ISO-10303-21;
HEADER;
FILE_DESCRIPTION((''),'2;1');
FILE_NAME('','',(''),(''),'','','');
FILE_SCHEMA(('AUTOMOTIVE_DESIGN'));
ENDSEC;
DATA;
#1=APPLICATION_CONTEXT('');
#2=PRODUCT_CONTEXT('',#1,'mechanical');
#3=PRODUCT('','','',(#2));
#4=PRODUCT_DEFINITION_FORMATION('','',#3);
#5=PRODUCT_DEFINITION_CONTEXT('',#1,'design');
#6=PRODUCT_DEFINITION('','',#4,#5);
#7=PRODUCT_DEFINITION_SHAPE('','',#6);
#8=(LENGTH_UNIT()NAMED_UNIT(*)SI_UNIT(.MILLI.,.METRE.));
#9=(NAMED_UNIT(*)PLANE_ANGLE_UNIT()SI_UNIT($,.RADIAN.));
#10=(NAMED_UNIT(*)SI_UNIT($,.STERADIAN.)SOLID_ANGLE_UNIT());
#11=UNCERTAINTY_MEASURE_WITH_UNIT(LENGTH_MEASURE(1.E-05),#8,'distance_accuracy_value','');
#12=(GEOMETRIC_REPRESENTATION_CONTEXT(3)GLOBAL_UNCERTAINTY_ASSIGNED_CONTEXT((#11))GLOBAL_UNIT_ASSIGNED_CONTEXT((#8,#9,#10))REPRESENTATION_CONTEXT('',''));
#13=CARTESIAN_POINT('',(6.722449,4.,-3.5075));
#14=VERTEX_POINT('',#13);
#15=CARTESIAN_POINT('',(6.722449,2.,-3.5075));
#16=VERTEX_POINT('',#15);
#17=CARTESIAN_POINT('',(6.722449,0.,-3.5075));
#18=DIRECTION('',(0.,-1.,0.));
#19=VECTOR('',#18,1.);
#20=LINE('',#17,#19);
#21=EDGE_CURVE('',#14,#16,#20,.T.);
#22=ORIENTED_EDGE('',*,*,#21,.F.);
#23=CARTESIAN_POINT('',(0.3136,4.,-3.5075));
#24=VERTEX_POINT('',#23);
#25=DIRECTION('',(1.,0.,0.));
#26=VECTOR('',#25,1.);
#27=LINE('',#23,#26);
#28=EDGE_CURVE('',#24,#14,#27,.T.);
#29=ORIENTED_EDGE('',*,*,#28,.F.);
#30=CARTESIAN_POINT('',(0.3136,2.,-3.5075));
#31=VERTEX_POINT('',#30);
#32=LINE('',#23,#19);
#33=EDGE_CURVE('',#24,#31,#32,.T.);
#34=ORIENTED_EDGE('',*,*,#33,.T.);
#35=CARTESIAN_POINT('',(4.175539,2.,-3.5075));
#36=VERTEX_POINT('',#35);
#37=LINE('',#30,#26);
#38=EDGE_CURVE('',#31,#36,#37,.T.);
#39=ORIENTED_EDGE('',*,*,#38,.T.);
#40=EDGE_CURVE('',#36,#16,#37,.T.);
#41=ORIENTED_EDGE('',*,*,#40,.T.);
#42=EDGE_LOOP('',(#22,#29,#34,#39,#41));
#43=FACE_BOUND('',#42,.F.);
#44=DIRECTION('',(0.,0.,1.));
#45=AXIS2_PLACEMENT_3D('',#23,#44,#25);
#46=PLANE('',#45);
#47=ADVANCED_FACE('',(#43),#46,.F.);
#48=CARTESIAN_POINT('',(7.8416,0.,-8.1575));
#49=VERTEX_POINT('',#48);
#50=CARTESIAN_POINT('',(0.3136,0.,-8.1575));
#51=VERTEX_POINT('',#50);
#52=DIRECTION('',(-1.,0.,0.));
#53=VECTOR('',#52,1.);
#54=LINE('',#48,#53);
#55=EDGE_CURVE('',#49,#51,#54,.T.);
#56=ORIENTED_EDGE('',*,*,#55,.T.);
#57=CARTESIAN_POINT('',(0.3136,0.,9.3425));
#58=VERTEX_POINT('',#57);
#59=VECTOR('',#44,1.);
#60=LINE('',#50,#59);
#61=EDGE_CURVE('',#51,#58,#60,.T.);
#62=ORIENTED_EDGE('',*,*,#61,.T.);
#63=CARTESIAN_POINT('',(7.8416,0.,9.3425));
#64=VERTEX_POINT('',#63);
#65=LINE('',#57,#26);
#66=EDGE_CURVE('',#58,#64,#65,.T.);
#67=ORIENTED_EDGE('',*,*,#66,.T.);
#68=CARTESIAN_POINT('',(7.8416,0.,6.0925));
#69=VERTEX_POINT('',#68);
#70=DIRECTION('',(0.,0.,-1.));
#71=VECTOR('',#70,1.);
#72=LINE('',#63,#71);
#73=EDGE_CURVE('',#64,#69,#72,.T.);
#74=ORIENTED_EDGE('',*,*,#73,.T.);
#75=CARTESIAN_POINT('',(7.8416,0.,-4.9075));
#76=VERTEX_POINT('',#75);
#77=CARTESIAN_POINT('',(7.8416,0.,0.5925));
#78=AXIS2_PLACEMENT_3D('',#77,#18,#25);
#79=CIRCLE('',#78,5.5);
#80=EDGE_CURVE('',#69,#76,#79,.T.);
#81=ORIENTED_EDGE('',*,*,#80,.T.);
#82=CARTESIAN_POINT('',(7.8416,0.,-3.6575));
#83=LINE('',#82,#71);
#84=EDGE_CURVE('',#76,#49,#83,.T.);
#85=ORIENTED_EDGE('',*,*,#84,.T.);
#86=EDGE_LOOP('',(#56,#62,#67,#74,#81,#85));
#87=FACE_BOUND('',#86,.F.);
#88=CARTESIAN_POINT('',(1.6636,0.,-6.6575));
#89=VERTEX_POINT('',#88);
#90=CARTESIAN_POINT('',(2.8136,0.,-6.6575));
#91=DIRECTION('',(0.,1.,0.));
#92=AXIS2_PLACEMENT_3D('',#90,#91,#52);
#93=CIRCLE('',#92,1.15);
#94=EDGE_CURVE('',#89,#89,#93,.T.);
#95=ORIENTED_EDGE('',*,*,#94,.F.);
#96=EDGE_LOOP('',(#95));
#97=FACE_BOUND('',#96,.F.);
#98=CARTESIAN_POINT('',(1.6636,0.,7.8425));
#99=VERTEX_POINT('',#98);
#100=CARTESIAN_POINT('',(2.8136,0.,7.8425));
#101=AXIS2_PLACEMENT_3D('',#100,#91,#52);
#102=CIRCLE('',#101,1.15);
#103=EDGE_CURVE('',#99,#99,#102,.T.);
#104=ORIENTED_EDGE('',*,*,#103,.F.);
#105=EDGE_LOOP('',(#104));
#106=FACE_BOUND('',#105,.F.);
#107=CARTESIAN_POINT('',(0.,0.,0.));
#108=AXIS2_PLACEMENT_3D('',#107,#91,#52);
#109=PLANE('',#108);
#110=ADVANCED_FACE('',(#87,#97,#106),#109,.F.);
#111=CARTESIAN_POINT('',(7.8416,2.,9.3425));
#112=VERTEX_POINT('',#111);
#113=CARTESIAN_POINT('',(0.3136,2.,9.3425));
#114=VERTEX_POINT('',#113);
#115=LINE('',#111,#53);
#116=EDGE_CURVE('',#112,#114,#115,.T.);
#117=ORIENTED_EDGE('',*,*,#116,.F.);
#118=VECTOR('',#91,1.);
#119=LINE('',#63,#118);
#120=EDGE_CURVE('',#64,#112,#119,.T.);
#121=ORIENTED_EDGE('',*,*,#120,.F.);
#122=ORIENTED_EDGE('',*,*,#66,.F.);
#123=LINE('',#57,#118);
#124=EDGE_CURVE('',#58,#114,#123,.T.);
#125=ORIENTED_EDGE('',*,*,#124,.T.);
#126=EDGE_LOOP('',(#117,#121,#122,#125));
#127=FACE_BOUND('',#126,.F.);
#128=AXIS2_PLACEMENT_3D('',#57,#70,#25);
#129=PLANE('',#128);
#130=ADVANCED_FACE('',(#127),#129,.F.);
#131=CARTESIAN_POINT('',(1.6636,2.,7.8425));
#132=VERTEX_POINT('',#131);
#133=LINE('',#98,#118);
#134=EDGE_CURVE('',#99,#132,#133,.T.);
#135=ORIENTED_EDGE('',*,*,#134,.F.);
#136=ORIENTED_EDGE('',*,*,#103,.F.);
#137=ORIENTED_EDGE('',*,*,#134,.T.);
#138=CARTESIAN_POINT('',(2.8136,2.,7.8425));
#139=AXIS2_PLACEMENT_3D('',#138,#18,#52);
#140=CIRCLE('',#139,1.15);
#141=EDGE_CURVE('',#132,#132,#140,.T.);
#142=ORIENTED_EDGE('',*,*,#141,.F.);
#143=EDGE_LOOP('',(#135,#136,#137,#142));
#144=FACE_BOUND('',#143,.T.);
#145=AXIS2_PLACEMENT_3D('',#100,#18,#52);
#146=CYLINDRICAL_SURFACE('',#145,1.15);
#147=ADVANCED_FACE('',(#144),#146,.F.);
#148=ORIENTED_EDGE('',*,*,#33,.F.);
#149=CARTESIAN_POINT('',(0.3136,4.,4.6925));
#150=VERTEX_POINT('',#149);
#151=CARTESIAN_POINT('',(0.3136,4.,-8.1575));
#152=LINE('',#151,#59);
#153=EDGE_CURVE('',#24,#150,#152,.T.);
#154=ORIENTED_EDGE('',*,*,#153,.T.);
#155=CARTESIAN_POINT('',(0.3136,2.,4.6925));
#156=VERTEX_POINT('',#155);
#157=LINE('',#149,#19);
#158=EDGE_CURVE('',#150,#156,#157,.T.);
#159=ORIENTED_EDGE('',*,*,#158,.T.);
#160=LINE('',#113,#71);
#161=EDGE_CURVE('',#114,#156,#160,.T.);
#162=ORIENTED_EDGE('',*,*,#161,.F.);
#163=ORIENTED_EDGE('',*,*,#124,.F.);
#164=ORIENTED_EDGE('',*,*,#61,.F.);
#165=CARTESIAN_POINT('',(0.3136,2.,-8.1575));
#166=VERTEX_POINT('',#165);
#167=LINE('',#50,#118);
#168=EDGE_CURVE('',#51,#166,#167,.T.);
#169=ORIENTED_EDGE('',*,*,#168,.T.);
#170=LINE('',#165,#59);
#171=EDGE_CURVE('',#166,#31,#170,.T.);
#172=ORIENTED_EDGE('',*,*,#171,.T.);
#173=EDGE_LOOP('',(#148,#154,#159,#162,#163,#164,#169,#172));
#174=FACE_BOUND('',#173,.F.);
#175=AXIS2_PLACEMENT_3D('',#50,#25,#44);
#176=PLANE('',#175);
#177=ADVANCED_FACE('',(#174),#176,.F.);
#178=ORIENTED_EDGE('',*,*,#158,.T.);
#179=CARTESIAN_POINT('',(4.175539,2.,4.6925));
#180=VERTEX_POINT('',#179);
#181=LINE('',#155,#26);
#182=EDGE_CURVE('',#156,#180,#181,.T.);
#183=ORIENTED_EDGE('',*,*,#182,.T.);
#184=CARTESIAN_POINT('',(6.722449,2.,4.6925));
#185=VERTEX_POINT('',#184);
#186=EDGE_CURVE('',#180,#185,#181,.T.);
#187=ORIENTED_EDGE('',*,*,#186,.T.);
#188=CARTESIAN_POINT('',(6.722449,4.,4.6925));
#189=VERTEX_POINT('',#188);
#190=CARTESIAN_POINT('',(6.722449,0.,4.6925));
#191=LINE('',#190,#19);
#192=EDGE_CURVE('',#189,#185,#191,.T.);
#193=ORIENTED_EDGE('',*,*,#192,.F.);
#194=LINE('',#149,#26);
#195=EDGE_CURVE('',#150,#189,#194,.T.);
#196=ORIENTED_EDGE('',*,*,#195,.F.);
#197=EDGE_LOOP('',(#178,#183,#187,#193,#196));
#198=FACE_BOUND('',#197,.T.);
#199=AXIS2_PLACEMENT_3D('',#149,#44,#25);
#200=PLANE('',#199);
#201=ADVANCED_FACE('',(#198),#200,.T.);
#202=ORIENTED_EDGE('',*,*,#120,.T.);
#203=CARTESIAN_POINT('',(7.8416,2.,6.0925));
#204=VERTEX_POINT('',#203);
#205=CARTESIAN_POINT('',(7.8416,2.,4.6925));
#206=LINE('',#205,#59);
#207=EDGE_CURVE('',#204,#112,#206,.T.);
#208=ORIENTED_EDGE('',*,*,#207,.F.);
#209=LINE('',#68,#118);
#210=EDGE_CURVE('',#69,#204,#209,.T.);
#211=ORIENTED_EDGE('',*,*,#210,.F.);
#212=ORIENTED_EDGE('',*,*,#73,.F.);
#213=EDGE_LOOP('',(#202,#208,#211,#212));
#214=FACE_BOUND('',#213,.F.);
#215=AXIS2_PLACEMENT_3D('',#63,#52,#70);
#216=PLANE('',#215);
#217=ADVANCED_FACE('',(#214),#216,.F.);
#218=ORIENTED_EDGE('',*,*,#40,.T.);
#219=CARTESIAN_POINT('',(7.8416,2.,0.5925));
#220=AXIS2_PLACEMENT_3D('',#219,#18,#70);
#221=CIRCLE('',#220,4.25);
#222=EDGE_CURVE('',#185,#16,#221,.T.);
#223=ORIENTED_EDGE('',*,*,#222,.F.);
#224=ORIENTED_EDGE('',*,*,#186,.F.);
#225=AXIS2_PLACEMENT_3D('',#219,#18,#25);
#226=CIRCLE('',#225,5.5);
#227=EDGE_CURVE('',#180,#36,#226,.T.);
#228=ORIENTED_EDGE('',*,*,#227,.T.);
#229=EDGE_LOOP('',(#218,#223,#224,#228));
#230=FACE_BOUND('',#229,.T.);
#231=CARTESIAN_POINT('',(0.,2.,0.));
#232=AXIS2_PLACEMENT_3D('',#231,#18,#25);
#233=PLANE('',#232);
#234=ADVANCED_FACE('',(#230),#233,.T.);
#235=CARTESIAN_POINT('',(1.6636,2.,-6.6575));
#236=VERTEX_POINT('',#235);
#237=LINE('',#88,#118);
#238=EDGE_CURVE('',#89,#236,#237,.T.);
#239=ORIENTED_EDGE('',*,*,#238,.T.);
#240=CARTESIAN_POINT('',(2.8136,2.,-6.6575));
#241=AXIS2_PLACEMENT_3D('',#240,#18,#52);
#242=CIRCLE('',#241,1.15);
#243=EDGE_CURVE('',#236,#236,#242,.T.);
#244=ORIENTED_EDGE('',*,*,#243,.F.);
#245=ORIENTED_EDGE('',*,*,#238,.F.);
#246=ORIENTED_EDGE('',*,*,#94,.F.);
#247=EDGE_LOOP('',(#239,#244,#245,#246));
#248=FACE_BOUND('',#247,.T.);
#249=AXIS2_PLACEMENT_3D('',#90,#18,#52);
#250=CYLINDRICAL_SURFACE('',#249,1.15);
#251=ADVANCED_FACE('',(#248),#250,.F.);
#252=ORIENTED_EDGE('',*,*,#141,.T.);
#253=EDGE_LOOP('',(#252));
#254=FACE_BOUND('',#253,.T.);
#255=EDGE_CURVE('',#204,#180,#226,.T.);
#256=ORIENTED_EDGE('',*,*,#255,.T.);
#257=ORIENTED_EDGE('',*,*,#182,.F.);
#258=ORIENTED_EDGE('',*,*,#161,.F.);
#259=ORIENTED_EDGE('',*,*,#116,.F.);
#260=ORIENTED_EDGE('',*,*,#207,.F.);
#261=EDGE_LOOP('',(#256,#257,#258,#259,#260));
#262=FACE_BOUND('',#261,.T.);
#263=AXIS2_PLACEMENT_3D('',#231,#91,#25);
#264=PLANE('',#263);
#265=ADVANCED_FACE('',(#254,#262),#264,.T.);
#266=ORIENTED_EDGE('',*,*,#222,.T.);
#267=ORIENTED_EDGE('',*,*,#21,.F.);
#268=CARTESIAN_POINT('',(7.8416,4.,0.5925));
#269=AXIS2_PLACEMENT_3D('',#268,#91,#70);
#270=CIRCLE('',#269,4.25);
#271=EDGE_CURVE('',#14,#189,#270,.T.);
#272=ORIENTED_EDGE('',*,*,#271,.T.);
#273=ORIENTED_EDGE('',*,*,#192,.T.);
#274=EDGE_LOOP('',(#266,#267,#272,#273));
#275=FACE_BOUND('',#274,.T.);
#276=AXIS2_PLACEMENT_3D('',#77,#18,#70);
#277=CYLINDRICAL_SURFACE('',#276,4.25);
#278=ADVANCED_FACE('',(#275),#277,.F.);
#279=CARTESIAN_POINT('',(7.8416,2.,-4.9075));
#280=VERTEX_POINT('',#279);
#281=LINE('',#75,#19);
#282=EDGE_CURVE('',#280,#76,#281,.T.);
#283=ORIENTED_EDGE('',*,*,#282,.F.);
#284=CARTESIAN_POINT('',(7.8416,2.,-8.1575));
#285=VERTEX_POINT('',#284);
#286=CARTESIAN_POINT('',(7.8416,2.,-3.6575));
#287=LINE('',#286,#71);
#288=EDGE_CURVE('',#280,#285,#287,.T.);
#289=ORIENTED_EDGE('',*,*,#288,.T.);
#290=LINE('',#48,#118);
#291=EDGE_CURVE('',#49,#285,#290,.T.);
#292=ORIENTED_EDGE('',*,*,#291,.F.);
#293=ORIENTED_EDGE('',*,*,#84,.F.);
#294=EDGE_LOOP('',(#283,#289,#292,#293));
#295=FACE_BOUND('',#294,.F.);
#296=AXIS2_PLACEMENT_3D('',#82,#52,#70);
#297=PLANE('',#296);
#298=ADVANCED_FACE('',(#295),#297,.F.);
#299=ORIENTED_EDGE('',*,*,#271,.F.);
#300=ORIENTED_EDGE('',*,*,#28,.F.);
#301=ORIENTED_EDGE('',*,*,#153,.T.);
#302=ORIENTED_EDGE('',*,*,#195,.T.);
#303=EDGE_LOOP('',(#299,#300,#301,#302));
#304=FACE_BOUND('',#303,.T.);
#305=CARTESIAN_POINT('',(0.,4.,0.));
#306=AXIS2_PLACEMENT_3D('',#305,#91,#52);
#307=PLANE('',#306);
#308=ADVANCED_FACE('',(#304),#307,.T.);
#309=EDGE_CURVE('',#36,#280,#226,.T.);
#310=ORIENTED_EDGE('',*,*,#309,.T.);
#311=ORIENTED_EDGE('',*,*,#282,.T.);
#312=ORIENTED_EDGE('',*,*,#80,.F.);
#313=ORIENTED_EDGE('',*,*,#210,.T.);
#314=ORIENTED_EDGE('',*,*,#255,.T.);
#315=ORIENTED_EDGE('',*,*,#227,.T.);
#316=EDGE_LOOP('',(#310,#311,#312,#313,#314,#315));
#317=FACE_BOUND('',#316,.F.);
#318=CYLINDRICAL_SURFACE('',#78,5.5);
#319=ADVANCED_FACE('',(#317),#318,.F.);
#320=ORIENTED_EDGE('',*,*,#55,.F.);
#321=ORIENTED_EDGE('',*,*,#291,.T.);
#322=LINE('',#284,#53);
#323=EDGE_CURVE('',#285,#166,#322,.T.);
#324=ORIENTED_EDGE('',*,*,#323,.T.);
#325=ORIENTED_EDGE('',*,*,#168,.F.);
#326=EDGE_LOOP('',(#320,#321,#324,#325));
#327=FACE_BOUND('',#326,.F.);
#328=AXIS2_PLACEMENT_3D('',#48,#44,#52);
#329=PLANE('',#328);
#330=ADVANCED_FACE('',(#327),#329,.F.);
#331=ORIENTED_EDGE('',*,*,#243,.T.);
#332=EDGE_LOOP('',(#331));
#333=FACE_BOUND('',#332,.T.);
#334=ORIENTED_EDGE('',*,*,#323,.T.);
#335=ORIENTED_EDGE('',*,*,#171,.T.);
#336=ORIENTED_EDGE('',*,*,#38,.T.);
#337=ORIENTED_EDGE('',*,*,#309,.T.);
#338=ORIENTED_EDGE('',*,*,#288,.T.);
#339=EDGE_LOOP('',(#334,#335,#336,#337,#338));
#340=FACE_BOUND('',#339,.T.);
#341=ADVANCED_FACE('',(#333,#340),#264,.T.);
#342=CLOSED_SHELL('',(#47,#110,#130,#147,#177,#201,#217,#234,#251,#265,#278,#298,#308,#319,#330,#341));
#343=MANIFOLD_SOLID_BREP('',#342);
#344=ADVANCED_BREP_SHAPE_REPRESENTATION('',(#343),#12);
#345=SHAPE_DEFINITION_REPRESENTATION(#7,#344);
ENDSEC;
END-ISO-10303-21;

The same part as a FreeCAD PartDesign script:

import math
import FreeCAD as App
import Part
import Sketcher


def add_polygon(sketch, points):
    """Adds a closed chain of lines whose ends are joined by coincident constraints."""
    first, n = sketch.GeometryCount, len(points)
    for a, b in zip(points, points[1:] + points[:1]):
        sketch.addGeometry(Part.LineSegment(App.Vector(*a, 0), App.Vector(*b, 0)), False)
    for i in range(n):
        sketch.addConstraint(Sketcher.Constraint("Coincident", first + i, 2, first + (i + 1) % n, 1))

doc = App.newDocument("Part")
body = doc.addObject("PartDesign::Body", "Body")

sketch1 = body.newObject("Sketcher::SketchObject", "Sketch")
sketch1.AttachmentSupport = (doc.getObject("XZ_Plane"), [""])
sketch1.MapMode = "FlatFace"
sketch1.addGeometry([
    Part.LineSegment(App.Vector(0.3, -8.2, 0), App.Vector(0.3, 9.3, 0)),
    Part.LineSegment(App.Vector(0.3, 9.3, 0), App.Vector(7.8, 9.3, 0)),
    Part.LineSegment(App.Vector(7.8, 9.3, 0), App.Vector(7.8, 4.8, 0)),
    Part.ArcOfCircle(Part.Circle(App.Vector(7.8, 0.6, 0), App.Vector(0, 0, 1), 4.2), math.radians(90), math.radians(270)),
    Part.LineSegment(App.Vector(7.8, -3.7, 0), App.Vector(7.8, -8.2, 0)),
    Part.LineSegment(App.Vector(7.8, -8.2, 0), App.Vector(0.3, -8.2, 0)),
    Part.Circle(App.Vector(2.8, -6.7, 0), App.Vector(0, 0, 1), 1.1),
    Part.Circle(App.Vector(2.8, 7.8, 0), App.Vector(0, 0, 1), 1.1),
], False)
sketch1.addConstraint([
    Sketcher.Constraint("Coincident", 0, 2, 1, 1),
    Sketcher.Constraint("Coincident", 1, 2, 2, 1),
    Sketcher.Constraint("Coincident", 2, 2, 3, 1),
    Sketcher.Constraint("Coincident", 3, 2, 4, 1),
    Sketcher.Constraint("Coincident", 4, 2, 5, 1),
    Sketcher.Constraint("Coincident", 5, 2, 0, 1),
    Sketcher.Constraint("Vertical", 0),
    Sketcher.Constraint("Horizontal", 1),
    Sketcher.Constraint("Vertical", 2),
    Sketcher.Constraint("Vertical", 4),
    Sketcher.Constraint("Horizontal", 5),
    Sketcher.Constraint("Equal", 6, 7),
    Sketcher.Constraint("Vertical", 6, 3, 7, 3),
    Sketcher.Constraint("Vertical", 3, 3, 1, 2),
    Sketcher.Constraint("Vertical", 2, 2, 3, 2),
    Sketcher.Constraint("Equal", 2, 4),
    Sketcher.Constraint("Diameter", 6, 2.3),
    Sketcher.Constraint("Radius", 3, 4.25),
    Sketcher.Constraint("DistanceY", 0, 1, 0, 2, 17.5),
    Sketcher.Constraint("DistanceX", 0, 2, 7, 3, 2.5),
    Sketcher.Constraint("DistanceY", 7, 3, 0, 2, 1.5),
    Sketcher.Constraint("DistanceY", 4, 2, 6, 3, 1.5),
    Sketcher.Constraint("DistanceX", 1, 1, 1, 2, 7.528),
    Sketcher.Constraint("DistanceX", -1, 1, 3, 3, 7.8416),
    Sketcher.Constraint("DistanceY", -1, 1, 3, 3, 0.5925),
])
pad1 = body.newObject("PartDesign::Pad", "Pad")
pad1.Profile = sketch1
pad1.Length = 4
pad1.Reversed = True

sketch2 = body.newObject("Sketcher::SketchObject", "Sketch001")
sketch2.AttachmentSupport = (doc.getObject("XZ_Plane"), [""])
sketch2.MapMode = "FlatFace"
sketch2.addGeometry(Part.Circle(App.Vector(8, 1, 0), App.Vector(0, 0, 1), 6), False)
sketch2.addConstraint([
    Sketcher.Constraint("Diameter", 0, 11.0),
    Sketcher.Constraint("DistanceX", -1, 1, 0, 3, 7.8416),
    Sketcher.Constraint("DistanceY", -1, 1, 0, 3, 0.5925),
])
pocket1 = body.newObject("PartDesign::Pocket", "Pocket")
pocket1.Profile = sketch2
pocket1.Length = 2

sketch3 = body.newObject("Sketcher::SketchObject", "Sketch002")
sketch3.AttachmentSupport = (doc.getObject("XZ_Plane"), [""])
sketch3.MapMode = "FlatFace"
sketch3.AttachmentOffset = App.Placement(App.Vector(0, 0, -4), App.Rotation())
add_polygon(sketch3, [(0.3, 9.3), (7.8, 9.3), (7.8, 4.7), (0.3, 4.7)])
sketch3.addConstraint([
    Sketcher.Constraint("Horizontal", 0),
    Sketcher.Constraint("Vertical", 1),
    Sketcher.Constraint("Horizontal", 2),
    Sketcher.Constraint("Vertical", 3),
    Sketcher.Constraint("DistanceY", 1, 2, 1, 1, 4.65),
    Sketcher.Constraint("DistanceX", 0, 1, 0, 2, 7.528),
    Sketcher.Constraint("DistanceX", -1, 1, 0, 2, 7.8416),
    Sketcher.Constraint("DistanceY", -1, 1, 0, 2, 9.3425),
])
pocket2 = body.newObject("PartDesign::Pocket", "Pocket001")
pocket2.Profile = sketch3
pocket2.Length = 2
pocket2.Reversed = True

sketch4 = body.newObject("Sketcher::SketchObject", "Sketch003")
sketch4.AttachmentSupport = (doc.getObject("XZ_Plane"), [""])
sketch4.MapMode = "FlatFace"
sketch4.AttachmentOffset = App.Placement(App.Vector(0, 0, -4), App.Rotation())
add_polygon(sketch4, [(0.3, -8.2), (0.3, -3.5), (7.8, -3.5), (7.8, -8.2)])
sketch4.addConstraint([
    Sketcher.Constraint("Vertical", 0),
    Sketcher.Constraint("Horizontal", 1),
    Sketcher.Constraint("Vertical", 2),
    Sketcher.Constraint("Horizontal", 3),
    Sketcher.Constraint("DistanceY", 0, 1, 0, 2, 4.65),
    Sketcher.Constraint("DistanceX", 1, 1, 1, 2, 7.528),
    Sketcher.Constraint("DistanceX", -1, 1, 0, 2, 0.3136),
    Sketcher.Constraint("DistanceY", 0, 2, -1, 1, 3.5075),
])
pocket3 = body.newObject("PartDesign::Pocket", "Pocket002")
pocket3.Profile = sketch4
pocket3.Length = 2
pocket3.Reversed = True

doc.recompute()
